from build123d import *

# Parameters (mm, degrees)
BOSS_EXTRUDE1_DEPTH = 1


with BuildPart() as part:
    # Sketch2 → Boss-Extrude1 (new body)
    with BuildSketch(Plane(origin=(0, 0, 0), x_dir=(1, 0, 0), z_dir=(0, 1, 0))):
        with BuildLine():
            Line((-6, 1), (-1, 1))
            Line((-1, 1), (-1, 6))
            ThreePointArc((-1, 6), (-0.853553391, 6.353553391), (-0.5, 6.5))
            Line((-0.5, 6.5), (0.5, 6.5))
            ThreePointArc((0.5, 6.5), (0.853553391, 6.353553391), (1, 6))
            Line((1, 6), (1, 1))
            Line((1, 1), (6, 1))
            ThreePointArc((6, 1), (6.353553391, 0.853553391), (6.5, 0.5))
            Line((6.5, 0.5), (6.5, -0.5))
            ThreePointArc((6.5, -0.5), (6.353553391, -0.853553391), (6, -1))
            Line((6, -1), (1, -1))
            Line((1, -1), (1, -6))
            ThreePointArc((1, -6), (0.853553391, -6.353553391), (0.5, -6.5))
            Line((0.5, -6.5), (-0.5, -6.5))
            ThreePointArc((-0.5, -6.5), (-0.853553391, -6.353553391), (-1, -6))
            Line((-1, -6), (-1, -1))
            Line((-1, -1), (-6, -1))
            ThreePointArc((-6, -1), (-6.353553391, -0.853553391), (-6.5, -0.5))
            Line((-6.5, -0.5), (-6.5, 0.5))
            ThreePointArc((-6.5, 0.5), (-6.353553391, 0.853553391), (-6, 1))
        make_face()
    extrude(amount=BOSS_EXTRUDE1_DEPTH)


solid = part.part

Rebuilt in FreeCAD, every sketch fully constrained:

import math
import FreeCAD as App
import Part
import Sketcher

doc = App.newDocument("Part")
body = doc.addObject("PartDesign::Body", "Body")

sketch1 = body.newObject("Sketcher::SketchObject", "Sketch")
sketch1.AttachmentSupport = (doc.getObject("XZ_Plane"), [""])
sketch1.MapMode = "FlatFace"
sketch1.addGeometry([
    Part.LineSegment(App.Vector(-1, -1, 0), App.Vector(-6, -1, 0)),
    Part.ArcOfCircle(Part.Circle(App.Vector(-6, -0.5, 0), App.Vector(0, 0, 1), 0.5), math.radians(180), math.radians(270)),
    Part.LineSegment(App.Vector(-6.5, -0.5, 0), App.Vector(-6.5, 0.5, 0)),
    Part.ArcOfCircle(Part.Circle(App.Vector(-6, 0.5, 0), App.Vector(0, 0, 1), 0.5), math.radians(90), math.radians(180)),
    Part.LineSegment(App.Vector(-6, 1, 0), App.Vector(-1, 1, 0)),
    Part.LineSegment(App.Vector(-1, 1, 0), App.Vector(-1, 6, 0)),
    Part.ArcOfCircle(Part.Circle(App.Vector(-0.5, 6, 0), App.Vector(0, 0, 1), 0.5), math.radians(90), math.radians(180)),
    Part.LineSegment(App.Vector(-0.5, 6.5, 0), App.Vector(0.5, 6.5, 0)),
    Part.ArcOfCircle(Part.Circle(App.Vector(0.5, 6, 0), App.Vector(0, 0, 1), 0.5), math.radians(0), math.radians(90)),
    Part.LineSegment(App.Vector(1, 6, 0), App.Vector(1, 1, 0)),
    Part.LineSegment(App.Vector(1, 1, 0), App.Vector(6, 1, 0)),
    Part.ArcOfCircle(Part.Circle(App.Vector(6, 0.5, 0), App.Vector(0, 0, 1), 0.5), math.radians(0), math.radians(90)),
    Part.LineSegment(App.Vector(6.5, 0.5, 0), App.Vector(6.5, -0.5, 0)),
    Part.ArcOfCircle(Part.Circle(App.Vector(6, -0.5, 0), App.Vector(0, 0, 1), 0.5), math.radians(-90), math.radians(0)),
    Part.LineSegment(App.Vector(6, -1, 0), App.Vector(1, -1, 0)),
    Part.LineSegment(App.Vector(1, -1, 0), App.Vector(1, -6, 0)),
    Part.ArcOfCircle(Part.Circle(App.Vector(0.5, -6, 0), App.Vector(0, 0, 1), 0.5), math.radians(-90), math.radians(0)),
    Part.LineSegment(App.Vector(0.5, -6.5, 0), App.Vector(-0.5, -6.5, 0)),
    Part.ArcOfCircle(Part.Circle(App.Vector(-0.5, -6, 0), App.Vector(0, 0, 1), 0.5), math.radians(180), math.radians(270)),
    Part.LineSegment(App.Vector(-1, -6, 0), App.Vector(-1, -1, 0)),
], False)
sketch1.addConstraint([
    Sketcher.Constraint("Tangent", 0, 2, 1, 2),
    Sketcher.Constraint("Tangent", 1, 1, 2, 1),
    Sketcher.Constraint("Tangent", 2, 2, 3, 2),
    Sketcher.Constraint("Tangent", 3, 1, 4, 1),
    Sketcher.Constraint("Coincident", 4, 2, 5, 1),
    Sketcher.Constraint("Tangent", 5, 2, 6, 2),
    Sketcher.Constraint("Tangent", 6, 1, 7, 1),
    Sketcher.Constraint("Tangent", 7, 2, 8, 2),
    Sketcher.Constraint("Tangent", 8, 1, 9, 1),
    Sketcher.Constraint("Coincident", 9, 2, 10, 1),
    Sketcher.Constraint("Tangent", 10, 2, 11, 2),
    Sketcher.Constraint("Tangent", 11, 1, 12, 1),
    Sketcher.Constraint("Tangent", 12, 2, 13, 2),
    Sketcher.Constraint("Tangent", 13, 1, 14, 1),
    Sketcher.Constraint("Coincident", 14, 2, 15, 1),
    Sketcher.Constraint("Tangent", 15, 2, 16, 2),
    Sketcher.Constraint("Tangent", 16, 1, 17, 1),
    Sketcher.Constraint("Tangent", 17, 2, 18, 2),
    Sketcher.Constraint("Tangent", 18, 1, 19, 1),
    Sketcher.Constraint("Coincident", 19, 2, 0, 1),
    Sketcher.Constraint("Horizontal", 0),
    Sketcher.Constraint("Vertical", 2),
    Sketcher.Constraint("Horizontal", 4),
    Sketcher.Constraint("Vertical", 5),
    Sketcher.Constraint("Horizontal", 7),
    Sketcher.Constraint("Vertical", 9),
    Sketcher.Constraint("Horizontal", 10),
    Sketcher.Constraint("Vertical", 12),
    Sketcher.Constraint("Horizontal", 14),
    Sketcher.Constraint("Vertical", 15),
    Sketcher.Constraint("Horizontal", 17),
    Sketcher.Constraint("Vertical", 19),
    Sketcher.Constraint("Equal", 1, 3),
    Sketcher.Constraint("Equal", 3, 6),
    Sketcher.Constraint("Equal", 6, 8),
    Sketcher.Constraint("Equal", 8, 11),
    Sketcher.Constraint("Equal", 11, 13),
    Sketcher.Constraint("Equal", 13, 16),
    Sketcher.Constraint("Equal", 16, 18),
    Sketcher.Constraint("Symmetric", 1, 3, 11, 3, -1, 1),
    Sketcher.Constraint("Symmetric", 6, 3, 16, 3, -1, 1),
    Sketcher.Constraint("Symmetric", 4, 2, 9, 2, -2),
    Sketcher.Constraint("Symmetric", 14, 2, 19, 2, -2),
    Sketcher.Constraint("Equal", 17, 2),
    Sketcher.Constraint("Equal", 14, 5),
    Sketcher.Constraint("Radius", 1, 0.5),
    Sketcher.Constraint("DistanceX", 0, 2, 0, 1, 5.0),
    Sketcher.Constraint("DistanceX", 7, 1, 7, 2, 1.0),
])
pad1 = body.newObject("PartDesign::Pad", "Pad")
pad1.Profile = sketch1
pad1.Length = 1
pad1.Reversed = True

doc.recompute()
